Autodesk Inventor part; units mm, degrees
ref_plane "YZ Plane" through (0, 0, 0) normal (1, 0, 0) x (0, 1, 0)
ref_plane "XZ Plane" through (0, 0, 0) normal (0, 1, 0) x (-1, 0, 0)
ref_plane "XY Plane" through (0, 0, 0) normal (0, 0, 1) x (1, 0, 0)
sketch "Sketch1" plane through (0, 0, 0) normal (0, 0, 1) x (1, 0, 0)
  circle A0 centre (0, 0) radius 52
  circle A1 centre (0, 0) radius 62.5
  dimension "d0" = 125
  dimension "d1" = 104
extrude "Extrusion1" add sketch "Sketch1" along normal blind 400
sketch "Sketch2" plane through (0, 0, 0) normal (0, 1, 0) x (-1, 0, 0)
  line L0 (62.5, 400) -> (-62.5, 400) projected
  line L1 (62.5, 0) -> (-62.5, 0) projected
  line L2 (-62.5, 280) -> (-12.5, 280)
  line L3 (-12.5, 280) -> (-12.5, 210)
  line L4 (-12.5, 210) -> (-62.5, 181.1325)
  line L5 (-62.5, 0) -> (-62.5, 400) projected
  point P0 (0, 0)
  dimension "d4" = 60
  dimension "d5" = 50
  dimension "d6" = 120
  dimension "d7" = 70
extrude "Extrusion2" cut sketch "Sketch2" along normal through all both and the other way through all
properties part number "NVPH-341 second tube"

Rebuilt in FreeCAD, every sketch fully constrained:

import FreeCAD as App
import Part
import Sketcher
from FreeCAD import Vector
Q = App.Units.Quantity


def add_polygon(sketch, points):
    """Adds a closed chain of lines whose ends are joined by coincident constraints."""
    first, n = sketch.GeometryCount, len(points)
    for a, b in zip(points, points[1:] + points[:1]):
        sketch.addGeometry(Part.LineSegment(App.Vector(*a, 0), App.Vector(*b, 0)), False)
    for i in range(n):
        sketch.addConstraint(Sketcher.Constraint("Coincident", first + i, 2, first + (i + 1) % n, 1))

doc = App.newDocument("Part")
body = doc.addObject("PartDesign::Body", "Body")

# Sketch on XY plane
sketch1 = doc.addObject("Sketcher::SketchObject", "Sketch")
body.addObject(sketch1)
sketch1.AttachmentSupport = (doc.XY_Plane, [""])
sketch1.MapMode = "FlatFace"
sketch1.addGeometry([
    Part.Circle(Vector(0, 0, 0), Vector(0, 0, 1), 62),
    Part.Circle(Vector(0, 0, 0), Vector(0, 0, 1), 52),
], False)
sketch1.addConstraint([
    Sketcher.Constraint("Coincident", 0, 3, -1, 1),
    Sketcher.Constraint("Coincident", 1, 3, -1, 1),
    Sketcher.Constraint("Diameter", 0, 125.0),
    Sketcher.Constraint("Diameter", 1, 104.0),
])
pad1 = doc.addObject("PartDesign::Pad", "Pad")
body.addObject(pad1)
pad1.Profile = sketch1
pad1.Length = 400

# Sketch on XZ plane
sketch2 = doc.addObject("Sketcher::SketchObject", "Sketch001")
body.addObject(sketch2)
sketch2.AttachmentSupport = (doc.XZ_Plane, [""])
sketch2.MapMode = "FlatFace"
add_polygon(sketch2, [(12, 280), (62, 280), (62, 181), (12, 210)])  # lines 0-3
sketch2.addConstraint([
    Sketcher.Constraint("Horizontal", 0),
    Sketcher.Constraint("Vertical", 1),
    Sketcher.Constraint("Vertical", 3),
    Sketcher.Constraint("DistanceX", 0, 1, 0, 2, 50.0),
    Sketcher.Constraint("DistanceY", 3, 1, 3, 2, 70.0),
    Sketcher.Constraint("Angle", 2, Q("150 deg")),
    Sketcher.Constraint("DistanceY", -1, 1, 0, 2, 280.0),
    Sketcher.Constraint("DistanceX", -1, 1, 0, 2, 62.5),
])
pocket1 = doc.addObject("PartDesign::Pocket", "Pocket")
body.addObject(pocket1)
pocket1.Profile = sketch2
pocket1.Type = "ThroughAll"
pocket1.Midplane = True

doc.recompute()
